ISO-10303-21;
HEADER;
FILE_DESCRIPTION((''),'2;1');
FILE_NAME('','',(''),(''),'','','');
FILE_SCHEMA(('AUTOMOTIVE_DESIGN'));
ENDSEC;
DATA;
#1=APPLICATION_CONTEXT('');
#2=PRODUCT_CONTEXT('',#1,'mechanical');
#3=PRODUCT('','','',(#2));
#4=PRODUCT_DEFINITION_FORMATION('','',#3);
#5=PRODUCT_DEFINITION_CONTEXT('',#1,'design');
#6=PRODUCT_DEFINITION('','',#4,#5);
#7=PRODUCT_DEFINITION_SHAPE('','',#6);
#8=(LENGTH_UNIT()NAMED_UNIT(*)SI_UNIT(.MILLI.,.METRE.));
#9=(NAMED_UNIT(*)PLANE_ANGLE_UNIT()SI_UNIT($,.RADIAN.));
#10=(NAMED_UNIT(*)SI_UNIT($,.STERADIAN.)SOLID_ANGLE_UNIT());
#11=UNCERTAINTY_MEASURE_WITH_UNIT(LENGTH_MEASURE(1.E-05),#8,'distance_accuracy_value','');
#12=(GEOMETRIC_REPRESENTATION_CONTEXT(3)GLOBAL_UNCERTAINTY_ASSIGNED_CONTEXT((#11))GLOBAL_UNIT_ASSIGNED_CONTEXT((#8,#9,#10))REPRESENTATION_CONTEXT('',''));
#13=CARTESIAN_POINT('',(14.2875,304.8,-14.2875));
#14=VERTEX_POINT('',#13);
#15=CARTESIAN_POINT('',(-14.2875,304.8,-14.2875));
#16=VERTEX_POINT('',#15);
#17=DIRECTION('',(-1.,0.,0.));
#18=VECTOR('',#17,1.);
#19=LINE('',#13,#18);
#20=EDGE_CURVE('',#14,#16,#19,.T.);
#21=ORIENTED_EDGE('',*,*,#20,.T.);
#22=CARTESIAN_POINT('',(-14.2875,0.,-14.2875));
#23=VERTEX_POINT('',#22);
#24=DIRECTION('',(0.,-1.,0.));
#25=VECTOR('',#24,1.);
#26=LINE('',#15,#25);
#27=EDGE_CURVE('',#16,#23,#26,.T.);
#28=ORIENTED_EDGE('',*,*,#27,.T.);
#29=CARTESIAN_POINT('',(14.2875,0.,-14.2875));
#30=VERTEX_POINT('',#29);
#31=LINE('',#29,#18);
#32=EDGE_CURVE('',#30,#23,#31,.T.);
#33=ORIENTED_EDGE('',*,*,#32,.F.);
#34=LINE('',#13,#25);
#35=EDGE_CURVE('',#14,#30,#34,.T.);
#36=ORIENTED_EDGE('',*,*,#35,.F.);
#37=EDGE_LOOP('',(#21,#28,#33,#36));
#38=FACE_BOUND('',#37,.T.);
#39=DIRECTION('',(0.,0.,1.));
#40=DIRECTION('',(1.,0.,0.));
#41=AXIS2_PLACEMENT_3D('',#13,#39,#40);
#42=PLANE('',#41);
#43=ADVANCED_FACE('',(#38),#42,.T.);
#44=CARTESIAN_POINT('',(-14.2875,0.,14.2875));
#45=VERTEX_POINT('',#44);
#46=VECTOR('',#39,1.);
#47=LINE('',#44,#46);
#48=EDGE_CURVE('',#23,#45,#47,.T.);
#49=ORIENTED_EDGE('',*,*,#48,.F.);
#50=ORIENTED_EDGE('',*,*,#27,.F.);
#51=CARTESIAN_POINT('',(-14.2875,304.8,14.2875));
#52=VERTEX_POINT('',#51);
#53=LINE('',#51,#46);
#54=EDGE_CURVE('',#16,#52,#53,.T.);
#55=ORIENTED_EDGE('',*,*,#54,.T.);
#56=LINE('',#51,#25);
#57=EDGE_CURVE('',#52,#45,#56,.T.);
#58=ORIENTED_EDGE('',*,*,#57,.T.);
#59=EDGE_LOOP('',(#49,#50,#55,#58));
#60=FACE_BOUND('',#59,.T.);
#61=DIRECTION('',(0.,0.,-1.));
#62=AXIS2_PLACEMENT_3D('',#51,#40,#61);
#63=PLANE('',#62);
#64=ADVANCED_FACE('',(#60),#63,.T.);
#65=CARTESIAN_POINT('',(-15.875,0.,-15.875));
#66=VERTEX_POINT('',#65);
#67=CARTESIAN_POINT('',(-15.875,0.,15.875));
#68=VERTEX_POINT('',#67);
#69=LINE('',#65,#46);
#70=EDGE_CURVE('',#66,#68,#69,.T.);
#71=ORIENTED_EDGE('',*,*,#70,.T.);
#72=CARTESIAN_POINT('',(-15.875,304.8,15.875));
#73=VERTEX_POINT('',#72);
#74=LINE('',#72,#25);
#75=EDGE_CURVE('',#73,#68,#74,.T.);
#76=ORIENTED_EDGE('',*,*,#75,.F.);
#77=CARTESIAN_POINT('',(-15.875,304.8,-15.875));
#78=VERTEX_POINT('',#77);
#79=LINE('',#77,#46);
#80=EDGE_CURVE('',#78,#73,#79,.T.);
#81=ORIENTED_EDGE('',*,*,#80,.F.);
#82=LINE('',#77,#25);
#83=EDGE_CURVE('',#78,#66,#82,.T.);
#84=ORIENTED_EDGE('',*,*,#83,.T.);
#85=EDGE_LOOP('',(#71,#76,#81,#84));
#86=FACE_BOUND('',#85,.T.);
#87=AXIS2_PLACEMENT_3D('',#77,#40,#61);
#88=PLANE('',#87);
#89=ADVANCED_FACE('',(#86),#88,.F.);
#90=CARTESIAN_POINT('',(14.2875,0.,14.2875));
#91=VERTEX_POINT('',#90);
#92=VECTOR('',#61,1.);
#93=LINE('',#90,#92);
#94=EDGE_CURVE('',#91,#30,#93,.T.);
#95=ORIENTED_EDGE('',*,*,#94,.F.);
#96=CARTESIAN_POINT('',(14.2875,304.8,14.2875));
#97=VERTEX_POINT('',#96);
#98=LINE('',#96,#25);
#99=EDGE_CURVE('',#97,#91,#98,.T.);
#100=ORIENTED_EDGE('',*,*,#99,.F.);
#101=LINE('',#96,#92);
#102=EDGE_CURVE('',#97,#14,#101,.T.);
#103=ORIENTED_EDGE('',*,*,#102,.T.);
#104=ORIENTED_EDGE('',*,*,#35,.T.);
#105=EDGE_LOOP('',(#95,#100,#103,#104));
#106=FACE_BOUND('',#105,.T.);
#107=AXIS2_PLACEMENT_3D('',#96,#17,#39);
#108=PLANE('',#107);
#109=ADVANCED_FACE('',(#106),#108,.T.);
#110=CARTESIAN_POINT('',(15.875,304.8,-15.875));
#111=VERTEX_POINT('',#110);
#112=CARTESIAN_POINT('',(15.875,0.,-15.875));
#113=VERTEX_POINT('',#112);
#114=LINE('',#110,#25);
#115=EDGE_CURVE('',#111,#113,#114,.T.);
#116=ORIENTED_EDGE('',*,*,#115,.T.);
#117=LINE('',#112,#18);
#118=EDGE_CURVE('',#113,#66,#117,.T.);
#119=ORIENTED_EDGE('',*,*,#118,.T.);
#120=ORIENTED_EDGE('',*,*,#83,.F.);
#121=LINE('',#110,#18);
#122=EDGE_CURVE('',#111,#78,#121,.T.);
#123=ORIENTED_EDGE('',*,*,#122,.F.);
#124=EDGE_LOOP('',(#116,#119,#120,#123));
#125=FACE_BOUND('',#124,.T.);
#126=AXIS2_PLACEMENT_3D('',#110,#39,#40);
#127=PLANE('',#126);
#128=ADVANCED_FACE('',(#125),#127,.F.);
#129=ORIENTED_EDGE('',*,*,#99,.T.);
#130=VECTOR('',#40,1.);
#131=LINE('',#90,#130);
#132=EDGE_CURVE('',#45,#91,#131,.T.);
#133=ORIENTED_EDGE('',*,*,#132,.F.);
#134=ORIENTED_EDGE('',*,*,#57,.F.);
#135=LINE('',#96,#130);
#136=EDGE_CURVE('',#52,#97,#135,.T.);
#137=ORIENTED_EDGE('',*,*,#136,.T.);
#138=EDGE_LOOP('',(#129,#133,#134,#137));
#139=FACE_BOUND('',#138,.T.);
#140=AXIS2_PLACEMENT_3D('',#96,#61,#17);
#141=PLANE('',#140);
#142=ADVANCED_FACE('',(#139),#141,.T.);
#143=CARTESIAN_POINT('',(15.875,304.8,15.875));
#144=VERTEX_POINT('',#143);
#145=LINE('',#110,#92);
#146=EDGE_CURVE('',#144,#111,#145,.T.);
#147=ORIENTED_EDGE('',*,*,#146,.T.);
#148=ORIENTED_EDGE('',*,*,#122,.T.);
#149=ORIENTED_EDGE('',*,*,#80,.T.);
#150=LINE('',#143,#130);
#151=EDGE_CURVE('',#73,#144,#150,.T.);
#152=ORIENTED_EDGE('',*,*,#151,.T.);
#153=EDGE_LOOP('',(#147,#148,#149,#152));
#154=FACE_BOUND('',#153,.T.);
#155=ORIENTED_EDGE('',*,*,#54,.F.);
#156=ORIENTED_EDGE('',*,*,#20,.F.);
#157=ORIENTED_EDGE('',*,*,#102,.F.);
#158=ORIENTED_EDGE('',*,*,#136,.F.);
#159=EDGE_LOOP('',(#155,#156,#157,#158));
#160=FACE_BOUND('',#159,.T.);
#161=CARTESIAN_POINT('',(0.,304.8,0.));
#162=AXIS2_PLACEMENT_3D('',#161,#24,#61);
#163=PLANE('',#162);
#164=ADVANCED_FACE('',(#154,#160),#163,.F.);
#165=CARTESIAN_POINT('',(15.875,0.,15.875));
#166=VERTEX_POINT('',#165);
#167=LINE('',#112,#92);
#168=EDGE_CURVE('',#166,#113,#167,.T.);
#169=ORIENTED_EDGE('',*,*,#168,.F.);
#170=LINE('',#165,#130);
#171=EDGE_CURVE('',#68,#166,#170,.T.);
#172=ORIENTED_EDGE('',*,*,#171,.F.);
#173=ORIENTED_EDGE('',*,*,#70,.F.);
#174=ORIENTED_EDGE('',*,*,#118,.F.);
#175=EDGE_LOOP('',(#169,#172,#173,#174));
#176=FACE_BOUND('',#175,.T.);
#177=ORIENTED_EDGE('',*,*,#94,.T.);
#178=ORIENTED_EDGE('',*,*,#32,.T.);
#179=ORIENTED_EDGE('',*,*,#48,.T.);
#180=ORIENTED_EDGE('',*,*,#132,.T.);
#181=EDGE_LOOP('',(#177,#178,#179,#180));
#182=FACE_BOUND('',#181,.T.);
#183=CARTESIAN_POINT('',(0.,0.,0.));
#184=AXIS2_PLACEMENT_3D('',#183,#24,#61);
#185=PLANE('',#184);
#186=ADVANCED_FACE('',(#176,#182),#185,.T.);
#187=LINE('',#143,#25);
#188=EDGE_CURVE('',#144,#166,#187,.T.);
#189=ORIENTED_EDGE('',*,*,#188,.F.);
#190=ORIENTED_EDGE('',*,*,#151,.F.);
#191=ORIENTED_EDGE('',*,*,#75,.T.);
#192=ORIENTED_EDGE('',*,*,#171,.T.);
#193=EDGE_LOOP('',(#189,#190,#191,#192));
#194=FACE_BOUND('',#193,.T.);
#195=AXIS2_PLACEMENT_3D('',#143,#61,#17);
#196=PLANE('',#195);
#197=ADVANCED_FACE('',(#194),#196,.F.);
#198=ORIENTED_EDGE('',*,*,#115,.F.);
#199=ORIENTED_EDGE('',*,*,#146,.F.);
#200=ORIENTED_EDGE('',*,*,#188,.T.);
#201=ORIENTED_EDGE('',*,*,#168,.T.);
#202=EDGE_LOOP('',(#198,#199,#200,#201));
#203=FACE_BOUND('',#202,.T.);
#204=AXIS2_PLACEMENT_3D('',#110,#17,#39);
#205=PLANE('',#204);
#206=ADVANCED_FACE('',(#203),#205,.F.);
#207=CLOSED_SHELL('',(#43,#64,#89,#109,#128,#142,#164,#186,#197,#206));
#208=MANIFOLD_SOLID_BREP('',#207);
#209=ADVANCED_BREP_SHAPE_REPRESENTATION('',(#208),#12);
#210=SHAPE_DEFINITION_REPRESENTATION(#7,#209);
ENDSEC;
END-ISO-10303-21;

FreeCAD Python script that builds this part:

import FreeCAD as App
import Part
import Sketcher
from FreeCAD import Vector
Q = App.Units.Quantity

doc = App.newDocument("Part")
body = doc.addObject("PartDesign::Body", "Body")

sketch1 = body.newObject("Sketcher::SketchObject", "Sketch")
sketch1.AttachmentSupport = (doc.getObject("XZ_Plane"), [""])
sketch1.MapMode = "FlatFace"
sketch1.addGeometry([
    Part.LineSegment(Vector(-16, -16, 0), Vector(-16, 16, 0)),
    Part.LineSegment(Vector(-16, 16, 0), Vector(16, 16, 0)),
    Part.LineSegment(Vector(16, 16, 0), Vector(16, -16, 0)),
    Part.LineSegment(Vector(16, -16, 0), Vector(-16, -16, 0)),
    Part.LineSegment(Vector(14, 14, 0), Vector(-14, 14, 0)),
    Part.LineSegment(Vector(-14, 14, 0), Vector(-14, -14, 0)),
    Part.LineSegment(Vector(-14, -14, 0), Vector(14, -14, 0)),
    Part.LineSegment(Vector(14, -14, 0), Vector(14, 14, 0)),
], False)
sketch1.addConstraint([
    Sketcher.Constraint("Coincident", 0, 2, 1, 1),
    Sketcher.Constraint("Coincident", 1, 2, 2, 1),
    Sketcher.Constraint("Coincident", 2, 2, 3, 1),
    Sketcher.Constraint("Coincident", 3, 2, 0, 1),
    Sketcher.Constraint("Coincident", 4, 2, 5, 1),
    Sketcher.Constraint("Coincident", 5, 2, 6, 1),
    Sketcher.Constraint("Coincident", 6, 2, 7, 1),
    Sketcher.Constraint("Coincident", 7, 2, 4, 1),
    Sketcher.Constraint("Vertical", 0),
    Sketcher.Constraint("Horizontal", 1),
    Sketcher.Constraint("Vertical", 2),
    Sketcher.Constraint("Horizontal", 3),
    Sketcher.Constraint("Horizontal", 4),
    Sketcher.Constraint("Vertical", 5),
    Sketcher.Constraint("Horizontal", 6),
    Sketcher.Constraint("Vertical", 7),
    Sketcher.Constraint("Symmetric", 0, 2, 2, 2, -1, 1),
    Sketcher.Constraint("Symmetric", 4, 2, 6, 2, -1, 1),
    Sketcher.Constraint("Equal", 3, 0),
    Sketcher.Constraint("Equal", 6, 5),
    Sketcher.Constraint("DistanceX", 1, 1, 1, 2, Q("1.25 in")),
    Sketcher.Constraint("DistanceX", 4, 2, 4, 1, Q("1.125 in")),
])
pad1 = body.newObject("PartDesign::Pad", "Pad")
pad1.Profile = sketch1
pad1.Length = Q("12 in")
pad1.Reversed = True

doc.recompute()
